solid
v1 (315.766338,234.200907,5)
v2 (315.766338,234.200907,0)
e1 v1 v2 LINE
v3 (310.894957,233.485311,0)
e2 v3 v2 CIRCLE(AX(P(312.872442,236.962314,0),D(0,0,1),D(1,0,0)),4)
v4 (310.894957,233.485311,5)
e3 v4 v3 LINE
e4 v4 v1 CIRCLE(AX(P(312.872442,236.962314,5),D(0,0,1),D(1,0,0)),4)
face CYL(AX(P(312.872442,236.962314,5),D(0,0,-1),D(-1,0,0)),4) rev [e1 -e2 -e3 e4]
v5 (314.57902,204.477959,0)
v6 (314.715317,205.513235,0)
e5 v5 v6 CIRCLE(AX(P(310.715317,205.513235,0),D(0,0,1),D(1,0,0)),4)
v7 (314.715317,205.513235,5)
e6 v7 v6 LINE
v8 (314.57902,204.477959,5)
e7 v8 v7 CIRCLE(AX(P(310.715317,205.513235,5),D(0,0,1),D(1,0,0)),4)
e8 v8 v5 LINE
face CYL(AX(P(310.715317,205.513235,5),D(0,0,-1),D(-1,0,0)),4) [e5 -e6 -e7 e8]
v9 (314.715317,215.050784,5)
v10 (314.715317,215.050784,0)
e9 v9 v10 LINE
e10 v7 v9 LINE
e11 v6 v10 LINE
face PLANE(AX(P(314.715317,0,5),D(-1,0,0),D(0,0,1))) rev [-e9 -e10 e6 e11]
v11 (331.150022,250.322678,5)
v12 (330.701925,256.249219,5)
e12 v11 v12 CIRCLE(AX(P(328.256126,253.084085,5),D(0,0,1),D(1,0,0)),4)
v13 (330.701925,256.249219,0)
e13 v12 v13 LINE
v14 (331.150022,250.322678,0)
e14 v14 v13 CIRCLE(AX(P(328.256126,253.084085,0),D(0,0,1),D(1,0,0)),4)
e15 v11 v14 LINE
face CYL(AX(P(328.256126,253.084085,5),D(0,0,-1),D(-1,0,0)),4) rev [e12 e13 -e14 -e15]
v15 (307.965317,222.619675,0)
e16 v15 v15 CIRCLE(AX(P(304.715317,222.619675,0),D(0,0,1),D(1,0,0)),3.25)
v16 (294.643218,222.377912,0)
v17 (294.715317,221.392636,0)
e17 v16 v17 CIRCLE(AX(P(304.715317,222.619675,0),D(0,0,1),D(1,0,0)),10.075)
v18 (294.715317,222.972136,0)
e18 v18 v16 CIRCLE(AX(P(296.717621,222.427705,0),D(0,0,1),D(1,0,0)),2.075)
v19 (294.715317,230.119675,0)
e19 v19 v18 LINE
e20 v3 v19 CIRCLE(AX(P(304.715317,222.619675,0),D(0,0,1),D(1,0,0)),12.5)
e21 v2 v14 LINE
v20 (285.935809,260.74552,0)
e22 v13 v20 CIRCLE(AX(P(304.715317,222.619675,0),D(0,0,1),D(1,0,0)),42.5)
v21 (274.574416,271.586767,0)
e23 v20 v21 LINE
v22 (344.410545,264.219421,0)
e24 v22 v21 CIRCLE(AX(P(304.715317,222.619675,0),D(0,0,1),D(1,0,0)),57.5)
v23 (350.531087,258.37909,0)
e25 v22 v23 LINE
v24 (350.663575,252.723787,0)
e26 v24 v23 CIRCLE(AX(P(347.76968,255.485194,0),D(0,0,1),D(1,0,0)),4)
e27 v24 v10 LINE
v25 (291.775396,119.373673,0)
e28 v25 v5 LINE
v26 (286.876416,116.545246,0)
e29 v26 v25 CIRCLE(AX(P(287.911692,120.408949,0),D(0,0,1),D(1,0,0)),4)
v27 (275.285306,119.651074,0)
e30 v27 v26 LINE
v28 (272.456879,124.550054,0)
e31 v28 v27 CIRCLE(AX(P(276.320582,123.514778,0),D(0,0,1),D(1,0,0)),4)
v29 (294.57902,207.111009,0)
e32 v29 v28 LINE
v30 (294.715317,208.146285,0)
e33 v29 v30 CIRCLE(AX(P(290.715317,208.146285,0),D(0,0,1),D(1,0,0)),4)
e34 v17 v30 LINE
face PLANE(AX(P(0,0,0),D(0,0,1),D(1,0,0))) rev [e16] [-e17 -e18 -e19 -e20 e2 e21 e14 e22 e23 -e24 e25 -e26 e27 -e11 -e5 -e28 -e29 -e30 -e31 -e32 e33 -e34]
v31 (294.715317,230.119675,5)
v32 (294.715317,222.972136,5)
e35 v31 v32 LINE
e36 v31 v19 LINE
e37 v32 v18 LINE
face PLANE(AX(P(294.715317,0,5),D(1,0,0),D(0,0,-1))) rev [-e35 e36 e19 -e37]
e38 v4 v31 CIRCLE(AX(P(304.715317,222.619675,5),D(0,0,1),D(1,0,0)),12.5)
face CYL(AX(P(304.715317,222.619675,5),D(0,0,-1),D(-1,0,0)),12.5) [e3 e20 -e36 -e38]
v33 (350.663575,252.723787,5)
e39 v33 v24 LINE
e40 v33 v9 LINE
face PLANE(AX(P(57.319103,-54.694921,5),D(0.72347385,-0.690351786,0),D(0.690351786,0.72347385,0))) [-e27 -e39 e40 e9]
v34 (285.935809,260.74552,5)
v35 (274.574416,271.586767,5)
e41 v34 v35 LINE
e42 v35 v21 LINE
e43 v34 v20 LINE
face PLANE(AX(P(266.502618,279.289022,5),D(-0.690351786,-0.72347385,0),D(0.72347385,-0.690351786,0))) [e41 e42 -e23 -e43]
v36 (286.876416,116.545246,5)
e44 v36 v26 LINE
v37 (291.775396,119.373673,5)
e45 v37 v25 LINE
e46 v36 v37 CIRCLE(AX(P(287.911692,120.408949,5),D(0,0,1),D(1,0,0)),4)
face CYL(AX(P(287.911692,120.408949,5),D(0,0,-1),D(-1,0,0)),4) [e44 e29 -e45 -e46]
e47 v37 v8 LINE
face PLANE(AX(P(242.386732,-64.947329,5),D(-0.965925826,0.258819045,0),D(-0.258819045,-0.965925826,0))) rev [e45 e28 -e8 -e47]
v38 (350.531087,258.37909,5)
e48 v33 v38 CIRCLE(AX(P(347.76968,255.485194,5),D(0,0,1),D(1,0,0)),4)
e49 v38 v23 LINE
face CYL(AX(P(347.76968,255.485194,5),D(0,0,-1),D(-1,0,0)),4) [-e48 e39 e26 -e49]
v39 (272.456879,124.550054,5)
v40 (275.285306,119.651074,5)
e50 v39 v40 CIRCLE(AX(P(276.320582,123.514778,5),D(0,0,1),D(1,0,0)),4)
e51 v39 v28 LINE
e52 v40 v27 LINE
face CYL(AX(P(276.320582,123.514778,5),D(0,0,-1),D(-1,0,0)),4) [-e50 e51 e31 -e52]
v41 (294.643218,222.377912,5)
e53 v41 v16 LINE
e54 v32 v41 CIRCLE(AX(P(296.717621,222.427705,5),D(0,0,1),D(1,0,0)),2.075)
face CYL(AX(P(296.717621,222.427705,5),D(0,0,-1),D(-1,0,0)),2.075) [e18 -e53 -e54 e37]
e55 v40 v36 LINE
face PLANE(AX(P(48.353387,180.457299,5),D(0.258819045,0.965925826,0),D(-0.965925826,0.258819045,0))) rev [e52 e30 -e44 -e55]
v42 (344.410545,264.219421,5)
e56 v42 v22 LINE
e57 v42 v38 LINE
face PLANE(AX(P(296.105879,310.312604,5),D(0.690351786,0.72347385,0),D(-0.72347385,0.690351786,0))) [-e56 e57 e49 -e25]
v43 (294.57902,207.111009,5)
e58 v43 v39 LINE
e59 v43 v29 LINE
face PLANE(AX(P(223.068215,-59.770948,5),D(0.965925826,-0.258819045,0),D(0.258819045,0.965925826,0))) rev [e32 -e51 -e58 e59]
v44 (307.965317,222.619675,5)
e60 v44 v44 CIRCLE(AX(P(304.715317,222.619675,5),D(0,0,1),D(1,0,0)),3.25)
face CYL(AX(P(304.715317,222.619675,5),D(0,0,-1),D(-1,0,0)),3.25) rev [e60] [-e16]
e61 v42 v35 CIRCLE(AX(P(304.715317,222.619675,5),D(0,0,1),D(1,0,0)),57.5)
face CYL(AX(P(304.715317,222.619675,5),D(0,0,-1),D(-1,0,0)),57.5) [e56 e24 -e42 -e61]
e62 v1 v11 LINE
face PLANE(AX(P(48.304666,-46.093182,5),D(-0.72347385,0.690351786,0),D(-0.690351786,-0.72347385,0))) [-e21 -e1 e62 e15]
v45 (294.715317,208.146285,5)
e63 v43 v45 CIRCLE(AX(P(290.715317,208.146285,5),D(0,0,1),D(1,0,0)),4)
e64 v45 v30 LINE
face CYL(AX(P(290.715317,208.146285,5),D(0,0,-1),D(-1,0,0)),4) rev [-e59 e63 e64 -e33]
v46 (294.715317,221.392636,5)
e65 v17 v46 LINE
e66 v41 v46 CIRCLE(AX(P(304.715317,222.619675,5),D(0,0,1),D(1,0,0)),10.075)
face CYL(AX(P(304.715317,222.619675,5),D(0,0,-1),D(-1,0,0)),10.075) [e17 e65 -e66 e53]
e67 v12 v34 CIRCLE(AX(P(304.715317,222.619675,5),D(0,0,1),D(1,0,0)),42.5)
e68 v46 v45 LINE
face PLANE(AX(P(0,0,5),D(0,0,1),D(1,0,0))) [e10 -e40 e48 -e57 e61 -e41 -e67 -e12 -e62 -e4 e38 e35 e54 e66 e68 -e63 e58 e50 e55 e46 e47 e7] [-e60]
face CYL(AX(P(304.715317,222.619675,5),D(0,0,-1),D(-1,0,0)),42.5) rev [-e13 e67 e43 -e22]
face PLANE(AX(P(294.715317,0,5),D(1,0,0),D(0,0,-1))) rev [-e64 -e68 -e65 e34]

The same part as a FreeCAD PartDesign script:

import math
import FreeCAD as App
import Part
import Sketcher
Q = App.Units.Quantity

doc = App.newDocument("Part")
body = doc.addObject("PartDesign::Body", "Body")

sketch1 = doc.addObject("Sketcher::SketchObject", "Sketch")
body.addObject(sketch1)
sketch1.AttachmentSupport = (doc.XY_Plane, [""])
sketch1.MapMode = "FlatFace"
sketch1.addGeometry([
    Part.LineSegment(App.Vector(350.531087, 258.37909, 0), App.Vector(344.410545, 264.219421, 0)),
    Part.ArcOfCircle(Part.Circle(App.Vector(304.715317, 222.619675, 0), App.Vector(0, 0, 1), 57.5), math.radians(46.342038), math.radians(121.613703)),
    Part.LineSegment(App.Vector(274.574416, 271.586767, 0), App.Vector(285.935809, 260.74552, 0)),
    Part.ArcOfCircle(Part.Circle(App.Vector(304.715317, 222.619675, 0), App.Vector(0, 0, 1), 42.5), math.radians(52.305608), math.radians(116.223305)),
    Part.ArcOfCircle(Part.Circle(App.Vector(328.256126, 253.084085, 0), App.Vector(0, 0, 1), 4), math.radians(-43.657962), math.radians(52.305608)),
    Part.LineSegment(App.Vector(331.150022, 250.322678, 0), App.Vector(315.766338, 234.200907, 0)),
    Part.ArcOfCircle(Part.Circle(App.Vector(312.872442, 236.962314, 0), App.Vector(0, 0, 1), 4), math.radians(-119.628297), math.radians(-43.657962)),
    Part.ArcOfCircle(Part.Circle(App.Vector(304.715317, 222.619675, 0), App.Vector(0, 0, 1), 12.5), math.radians(60.371703), math.radians(143.130102)),
    Part.LineSegment(App.Vector(294.715317, 230.119675, 0), App.Vector(294.715317, 222.972136, 0)),
    Part.ArcOfCircle(Part.Circle(App.Vector(296.717621, 222.427705, 0), App.Vector(0, 0, 1), 2.075), math.radians(164.788882), math.radians(181.375018)),
    Part.ArcOfCircle(Part.Circle(App.Vector(304.715317, 222.619675, 0), App.Vector(0, 0, 1), 10.075), math.radians(-178.624982), math.radians(-173.004552)),
    Part.LineSegment(App.Vector(294.715317, 221.392636, 0), App.Vector(294.715317, 208.146285, 0)),
    Part.ArcOfCircle(Part.Circle(App.Vector(290.715317, 208.146285, 0), App.Vector(0, 0, 1), 4), math.radians(-15), math.radians(0)),
    Part.LineSegment(App.Vector(294.57902, 207.111009, 0), App.Vector(272.456879, 124.550054, 0)),
    Part.ArcOfCircle(Part.Circle(App.Vector(276.320582, 123.514778, 0), App.Vector(0, 0, 1), 4), math.radians(165), math.radians(255)),
    Part.LineSegment(App.Vector(275.285306, 119.651074, 0), App.Vector(286.876416, 116.545246, 0)),
    Part.ArcOfCircle(Part.Circle(App.Vector(287.911692, 120.408949, 0), App.Vector(0, 0, 1), 4), math.radians(-105), math.radians(-15)),
    Part.LineSegment(App.Vector(291.775396, 119.373673, 0), App.Vector(314.57902, 204.477959, 0)),
    Part.ArcOfCircle(Part.Circle(App.Vector(310.715317, 205.513235, 0), App.Vector(0, 0, 1), 4), math.radians(-15), math.radians(0)),
    Part.LineSegment(App.Vector(314.715317, 205.513235, 0), App.Vector(314.715317, 215.050784, 0)),
    Part.LineSegment(App.Vector(314.715317, 215.050784, 0), App.Vector(350.663575, 252.723787, 0)),
    Part.ArcOfCircle(Part.Circle(App.Vector(347.76968, 255.485194, 0), App.Vector(0, 0, 1), 4), math.radians(-43.657962), math.radians(46.342038)),
    Part.Circle(App.Vector(304.715317, 222.619675, 0), App.Vector(0, 0, 1), 3.25),
], False)
sketch1.addConstraint([
    Sketcher.Constraint("Tangent", 0, 2, 1, 1),
    Sketcher.Constraint("Coincident", 1, 2, 2, 1),
    Sketcher.Constraint("Coincident", 2, 2, 3, 2),
    Sketcher.Constraint("Tangent", 3, 1, 4, 2),
    Sketcher.Constraint("Tangent", 4, 1, 5, 1),
    Sketcher.Constraint("Tangent", 5, 2, 6, 2),
    Sketcher.Constraint("Tangent", 6, 1, 7, 1),
    Sketcher.Constraint("Coincident", 7, 2, 8, 1),
    Sketcher.Constraint("Coincident", 8, 2, 9, 1),
    Sketcher.Constraint("Tangent", 9, 2, 10, 1),
    Sketcher.Constraint("Coincident", 10, 2, 11, 1),
    Sketcher.Constraint("Tangent", 11, 2, 12, 2),
    Sketcher.Constraint("Tangent", 12, 1, 13, 1),
    Sketcher.Constraint("Tangent", 13, 2, 14, 1),
    Sketcher.Constraint("Tangent", 14, 2, 15, 1),
    Sketcher.Constraint("Tangent", 15, 2, 16, 1),
    Sketcher.Constraint("Tangent", 16, 2, 17, 1),
    Sketcher.Constraint("Tangent", 17, 2, 18, 1),
    Sketcher.Constraint("Tangent", 18, 2, 19, 1),
    Sketcher.Constraint("Coincident", 19, 2, 20, 1),
    Sketcher.Constraint("Tangent", 20, 2, 21, 1),
    Sketcher.Constraint("Tangent", 21, 2, 0, 1),
    Sketcher.Constraint("Vertical", 8),
    Sketcher.Constraint("Vertical", 11),
    Sketcher.Constraint("Vertical", 19),
    Sketcher.Constraint("Coincident", 3, 3, 1, 3),
    Sketcher.Constraint("Coincident", 7, 3, 1, 3),
    Sketcher.Constraint("Coincident", 10, 3, 1, 3),
    Sketcher.Constraint("Coincident", 22, 3, 1, 3),
    Sketcher.Constraint("Equal", 4, 6),
    Sketcher.Constraint("Equal", 6, 12),
    Sketcher.Constraint("Equal", 12, 14),
    Sketcher.Constraint("Equal", 14, 16),
    Sketcher.Constraint("Equal", 16, 18),
    Sketcher.Constraint("Equal", 18, 21),
    Sketcher.Constraint("Parallel", 0, 2),
    Sketcher.Constraint("Perpendicular", 2, 5),
    Sketcher.Constraint("Perpendicular", 13, 15),
    Sketcher.Constraint("Perpendicular", 15, 17),
    Sketcher.Constraint("Parallel", 5, 20),
    Sketcher.Constraint("Vertical", 8, 2, 10, 2),
    Sketcher.Constraint("Radius", 4, Q("4 mm")),
    Sketcher.Constraint("Diameter", 22, Q("6.5 mm")),
    Sketcher.Constraint("Radius", 1, Q("57.5 mm")),
    Sketcher.Constraint("Radius", 3, Q("42.5 mm")),
    Sketcher.Constraint("Radius", 7, Q("12.5 mm")),
    Sketcher.Constraint("Angle", 13, Q("-105 deg")),
    Sketcher.Constraint("Distance", 15, Q("12 mm")),
    Sketcher.Constraint("Radius", 9, Q("2.075 mm")),
    Sketcher.Constraint("Radius", 10, Q("10.075 mm")),
    Sketcher.Constraint("DistanceX", 12, 3, 7, 3, Q("14 mm")),
    Sketcher.Constraint("DistanceX", 10, 3, 18, 3, Q("6 mm")),
    Sketcher.Constraint("DistanceY", 8, 2, 8, 1, Q("7.147539 mm")),
    Sketcher.Constraint("DistanceY", 11, 2, 11, 1, Q("13.246351 mm")),
    Sketcher.Constraint("DistanceY", 19, 1, 19, 2, Q("9.537549 mm")),
    Sketcher.Constraint("DistanceX", 1, 2, 3, 3, Q("30.140901 mm")),
    Sketcher.Constraint("DistanceY", 20, 2, 4, 3, Q("0.360298 mm")),
    Sketcher.Constraint("Distance", 13, Q("85.47339 mm")),
    Sketcher.Constraint("DistanceX", -1, 1, 9, 3, Q("296.717621 mm")),
    Sketcher.Constraint("DistanceY", -1, 1, 16, 3, Q("120.408949 mm")),
    Sketcher.Constraint("DistanceX", -1, 1, 21, 3, Q("347.76968 mm")),
])
pad1 = doc.addObject("PartDesign::Pad", "Pad")
body.addObject(pad1)
pad1.Profile = sketch1
pad1.Length = 5

doc.recompute()
